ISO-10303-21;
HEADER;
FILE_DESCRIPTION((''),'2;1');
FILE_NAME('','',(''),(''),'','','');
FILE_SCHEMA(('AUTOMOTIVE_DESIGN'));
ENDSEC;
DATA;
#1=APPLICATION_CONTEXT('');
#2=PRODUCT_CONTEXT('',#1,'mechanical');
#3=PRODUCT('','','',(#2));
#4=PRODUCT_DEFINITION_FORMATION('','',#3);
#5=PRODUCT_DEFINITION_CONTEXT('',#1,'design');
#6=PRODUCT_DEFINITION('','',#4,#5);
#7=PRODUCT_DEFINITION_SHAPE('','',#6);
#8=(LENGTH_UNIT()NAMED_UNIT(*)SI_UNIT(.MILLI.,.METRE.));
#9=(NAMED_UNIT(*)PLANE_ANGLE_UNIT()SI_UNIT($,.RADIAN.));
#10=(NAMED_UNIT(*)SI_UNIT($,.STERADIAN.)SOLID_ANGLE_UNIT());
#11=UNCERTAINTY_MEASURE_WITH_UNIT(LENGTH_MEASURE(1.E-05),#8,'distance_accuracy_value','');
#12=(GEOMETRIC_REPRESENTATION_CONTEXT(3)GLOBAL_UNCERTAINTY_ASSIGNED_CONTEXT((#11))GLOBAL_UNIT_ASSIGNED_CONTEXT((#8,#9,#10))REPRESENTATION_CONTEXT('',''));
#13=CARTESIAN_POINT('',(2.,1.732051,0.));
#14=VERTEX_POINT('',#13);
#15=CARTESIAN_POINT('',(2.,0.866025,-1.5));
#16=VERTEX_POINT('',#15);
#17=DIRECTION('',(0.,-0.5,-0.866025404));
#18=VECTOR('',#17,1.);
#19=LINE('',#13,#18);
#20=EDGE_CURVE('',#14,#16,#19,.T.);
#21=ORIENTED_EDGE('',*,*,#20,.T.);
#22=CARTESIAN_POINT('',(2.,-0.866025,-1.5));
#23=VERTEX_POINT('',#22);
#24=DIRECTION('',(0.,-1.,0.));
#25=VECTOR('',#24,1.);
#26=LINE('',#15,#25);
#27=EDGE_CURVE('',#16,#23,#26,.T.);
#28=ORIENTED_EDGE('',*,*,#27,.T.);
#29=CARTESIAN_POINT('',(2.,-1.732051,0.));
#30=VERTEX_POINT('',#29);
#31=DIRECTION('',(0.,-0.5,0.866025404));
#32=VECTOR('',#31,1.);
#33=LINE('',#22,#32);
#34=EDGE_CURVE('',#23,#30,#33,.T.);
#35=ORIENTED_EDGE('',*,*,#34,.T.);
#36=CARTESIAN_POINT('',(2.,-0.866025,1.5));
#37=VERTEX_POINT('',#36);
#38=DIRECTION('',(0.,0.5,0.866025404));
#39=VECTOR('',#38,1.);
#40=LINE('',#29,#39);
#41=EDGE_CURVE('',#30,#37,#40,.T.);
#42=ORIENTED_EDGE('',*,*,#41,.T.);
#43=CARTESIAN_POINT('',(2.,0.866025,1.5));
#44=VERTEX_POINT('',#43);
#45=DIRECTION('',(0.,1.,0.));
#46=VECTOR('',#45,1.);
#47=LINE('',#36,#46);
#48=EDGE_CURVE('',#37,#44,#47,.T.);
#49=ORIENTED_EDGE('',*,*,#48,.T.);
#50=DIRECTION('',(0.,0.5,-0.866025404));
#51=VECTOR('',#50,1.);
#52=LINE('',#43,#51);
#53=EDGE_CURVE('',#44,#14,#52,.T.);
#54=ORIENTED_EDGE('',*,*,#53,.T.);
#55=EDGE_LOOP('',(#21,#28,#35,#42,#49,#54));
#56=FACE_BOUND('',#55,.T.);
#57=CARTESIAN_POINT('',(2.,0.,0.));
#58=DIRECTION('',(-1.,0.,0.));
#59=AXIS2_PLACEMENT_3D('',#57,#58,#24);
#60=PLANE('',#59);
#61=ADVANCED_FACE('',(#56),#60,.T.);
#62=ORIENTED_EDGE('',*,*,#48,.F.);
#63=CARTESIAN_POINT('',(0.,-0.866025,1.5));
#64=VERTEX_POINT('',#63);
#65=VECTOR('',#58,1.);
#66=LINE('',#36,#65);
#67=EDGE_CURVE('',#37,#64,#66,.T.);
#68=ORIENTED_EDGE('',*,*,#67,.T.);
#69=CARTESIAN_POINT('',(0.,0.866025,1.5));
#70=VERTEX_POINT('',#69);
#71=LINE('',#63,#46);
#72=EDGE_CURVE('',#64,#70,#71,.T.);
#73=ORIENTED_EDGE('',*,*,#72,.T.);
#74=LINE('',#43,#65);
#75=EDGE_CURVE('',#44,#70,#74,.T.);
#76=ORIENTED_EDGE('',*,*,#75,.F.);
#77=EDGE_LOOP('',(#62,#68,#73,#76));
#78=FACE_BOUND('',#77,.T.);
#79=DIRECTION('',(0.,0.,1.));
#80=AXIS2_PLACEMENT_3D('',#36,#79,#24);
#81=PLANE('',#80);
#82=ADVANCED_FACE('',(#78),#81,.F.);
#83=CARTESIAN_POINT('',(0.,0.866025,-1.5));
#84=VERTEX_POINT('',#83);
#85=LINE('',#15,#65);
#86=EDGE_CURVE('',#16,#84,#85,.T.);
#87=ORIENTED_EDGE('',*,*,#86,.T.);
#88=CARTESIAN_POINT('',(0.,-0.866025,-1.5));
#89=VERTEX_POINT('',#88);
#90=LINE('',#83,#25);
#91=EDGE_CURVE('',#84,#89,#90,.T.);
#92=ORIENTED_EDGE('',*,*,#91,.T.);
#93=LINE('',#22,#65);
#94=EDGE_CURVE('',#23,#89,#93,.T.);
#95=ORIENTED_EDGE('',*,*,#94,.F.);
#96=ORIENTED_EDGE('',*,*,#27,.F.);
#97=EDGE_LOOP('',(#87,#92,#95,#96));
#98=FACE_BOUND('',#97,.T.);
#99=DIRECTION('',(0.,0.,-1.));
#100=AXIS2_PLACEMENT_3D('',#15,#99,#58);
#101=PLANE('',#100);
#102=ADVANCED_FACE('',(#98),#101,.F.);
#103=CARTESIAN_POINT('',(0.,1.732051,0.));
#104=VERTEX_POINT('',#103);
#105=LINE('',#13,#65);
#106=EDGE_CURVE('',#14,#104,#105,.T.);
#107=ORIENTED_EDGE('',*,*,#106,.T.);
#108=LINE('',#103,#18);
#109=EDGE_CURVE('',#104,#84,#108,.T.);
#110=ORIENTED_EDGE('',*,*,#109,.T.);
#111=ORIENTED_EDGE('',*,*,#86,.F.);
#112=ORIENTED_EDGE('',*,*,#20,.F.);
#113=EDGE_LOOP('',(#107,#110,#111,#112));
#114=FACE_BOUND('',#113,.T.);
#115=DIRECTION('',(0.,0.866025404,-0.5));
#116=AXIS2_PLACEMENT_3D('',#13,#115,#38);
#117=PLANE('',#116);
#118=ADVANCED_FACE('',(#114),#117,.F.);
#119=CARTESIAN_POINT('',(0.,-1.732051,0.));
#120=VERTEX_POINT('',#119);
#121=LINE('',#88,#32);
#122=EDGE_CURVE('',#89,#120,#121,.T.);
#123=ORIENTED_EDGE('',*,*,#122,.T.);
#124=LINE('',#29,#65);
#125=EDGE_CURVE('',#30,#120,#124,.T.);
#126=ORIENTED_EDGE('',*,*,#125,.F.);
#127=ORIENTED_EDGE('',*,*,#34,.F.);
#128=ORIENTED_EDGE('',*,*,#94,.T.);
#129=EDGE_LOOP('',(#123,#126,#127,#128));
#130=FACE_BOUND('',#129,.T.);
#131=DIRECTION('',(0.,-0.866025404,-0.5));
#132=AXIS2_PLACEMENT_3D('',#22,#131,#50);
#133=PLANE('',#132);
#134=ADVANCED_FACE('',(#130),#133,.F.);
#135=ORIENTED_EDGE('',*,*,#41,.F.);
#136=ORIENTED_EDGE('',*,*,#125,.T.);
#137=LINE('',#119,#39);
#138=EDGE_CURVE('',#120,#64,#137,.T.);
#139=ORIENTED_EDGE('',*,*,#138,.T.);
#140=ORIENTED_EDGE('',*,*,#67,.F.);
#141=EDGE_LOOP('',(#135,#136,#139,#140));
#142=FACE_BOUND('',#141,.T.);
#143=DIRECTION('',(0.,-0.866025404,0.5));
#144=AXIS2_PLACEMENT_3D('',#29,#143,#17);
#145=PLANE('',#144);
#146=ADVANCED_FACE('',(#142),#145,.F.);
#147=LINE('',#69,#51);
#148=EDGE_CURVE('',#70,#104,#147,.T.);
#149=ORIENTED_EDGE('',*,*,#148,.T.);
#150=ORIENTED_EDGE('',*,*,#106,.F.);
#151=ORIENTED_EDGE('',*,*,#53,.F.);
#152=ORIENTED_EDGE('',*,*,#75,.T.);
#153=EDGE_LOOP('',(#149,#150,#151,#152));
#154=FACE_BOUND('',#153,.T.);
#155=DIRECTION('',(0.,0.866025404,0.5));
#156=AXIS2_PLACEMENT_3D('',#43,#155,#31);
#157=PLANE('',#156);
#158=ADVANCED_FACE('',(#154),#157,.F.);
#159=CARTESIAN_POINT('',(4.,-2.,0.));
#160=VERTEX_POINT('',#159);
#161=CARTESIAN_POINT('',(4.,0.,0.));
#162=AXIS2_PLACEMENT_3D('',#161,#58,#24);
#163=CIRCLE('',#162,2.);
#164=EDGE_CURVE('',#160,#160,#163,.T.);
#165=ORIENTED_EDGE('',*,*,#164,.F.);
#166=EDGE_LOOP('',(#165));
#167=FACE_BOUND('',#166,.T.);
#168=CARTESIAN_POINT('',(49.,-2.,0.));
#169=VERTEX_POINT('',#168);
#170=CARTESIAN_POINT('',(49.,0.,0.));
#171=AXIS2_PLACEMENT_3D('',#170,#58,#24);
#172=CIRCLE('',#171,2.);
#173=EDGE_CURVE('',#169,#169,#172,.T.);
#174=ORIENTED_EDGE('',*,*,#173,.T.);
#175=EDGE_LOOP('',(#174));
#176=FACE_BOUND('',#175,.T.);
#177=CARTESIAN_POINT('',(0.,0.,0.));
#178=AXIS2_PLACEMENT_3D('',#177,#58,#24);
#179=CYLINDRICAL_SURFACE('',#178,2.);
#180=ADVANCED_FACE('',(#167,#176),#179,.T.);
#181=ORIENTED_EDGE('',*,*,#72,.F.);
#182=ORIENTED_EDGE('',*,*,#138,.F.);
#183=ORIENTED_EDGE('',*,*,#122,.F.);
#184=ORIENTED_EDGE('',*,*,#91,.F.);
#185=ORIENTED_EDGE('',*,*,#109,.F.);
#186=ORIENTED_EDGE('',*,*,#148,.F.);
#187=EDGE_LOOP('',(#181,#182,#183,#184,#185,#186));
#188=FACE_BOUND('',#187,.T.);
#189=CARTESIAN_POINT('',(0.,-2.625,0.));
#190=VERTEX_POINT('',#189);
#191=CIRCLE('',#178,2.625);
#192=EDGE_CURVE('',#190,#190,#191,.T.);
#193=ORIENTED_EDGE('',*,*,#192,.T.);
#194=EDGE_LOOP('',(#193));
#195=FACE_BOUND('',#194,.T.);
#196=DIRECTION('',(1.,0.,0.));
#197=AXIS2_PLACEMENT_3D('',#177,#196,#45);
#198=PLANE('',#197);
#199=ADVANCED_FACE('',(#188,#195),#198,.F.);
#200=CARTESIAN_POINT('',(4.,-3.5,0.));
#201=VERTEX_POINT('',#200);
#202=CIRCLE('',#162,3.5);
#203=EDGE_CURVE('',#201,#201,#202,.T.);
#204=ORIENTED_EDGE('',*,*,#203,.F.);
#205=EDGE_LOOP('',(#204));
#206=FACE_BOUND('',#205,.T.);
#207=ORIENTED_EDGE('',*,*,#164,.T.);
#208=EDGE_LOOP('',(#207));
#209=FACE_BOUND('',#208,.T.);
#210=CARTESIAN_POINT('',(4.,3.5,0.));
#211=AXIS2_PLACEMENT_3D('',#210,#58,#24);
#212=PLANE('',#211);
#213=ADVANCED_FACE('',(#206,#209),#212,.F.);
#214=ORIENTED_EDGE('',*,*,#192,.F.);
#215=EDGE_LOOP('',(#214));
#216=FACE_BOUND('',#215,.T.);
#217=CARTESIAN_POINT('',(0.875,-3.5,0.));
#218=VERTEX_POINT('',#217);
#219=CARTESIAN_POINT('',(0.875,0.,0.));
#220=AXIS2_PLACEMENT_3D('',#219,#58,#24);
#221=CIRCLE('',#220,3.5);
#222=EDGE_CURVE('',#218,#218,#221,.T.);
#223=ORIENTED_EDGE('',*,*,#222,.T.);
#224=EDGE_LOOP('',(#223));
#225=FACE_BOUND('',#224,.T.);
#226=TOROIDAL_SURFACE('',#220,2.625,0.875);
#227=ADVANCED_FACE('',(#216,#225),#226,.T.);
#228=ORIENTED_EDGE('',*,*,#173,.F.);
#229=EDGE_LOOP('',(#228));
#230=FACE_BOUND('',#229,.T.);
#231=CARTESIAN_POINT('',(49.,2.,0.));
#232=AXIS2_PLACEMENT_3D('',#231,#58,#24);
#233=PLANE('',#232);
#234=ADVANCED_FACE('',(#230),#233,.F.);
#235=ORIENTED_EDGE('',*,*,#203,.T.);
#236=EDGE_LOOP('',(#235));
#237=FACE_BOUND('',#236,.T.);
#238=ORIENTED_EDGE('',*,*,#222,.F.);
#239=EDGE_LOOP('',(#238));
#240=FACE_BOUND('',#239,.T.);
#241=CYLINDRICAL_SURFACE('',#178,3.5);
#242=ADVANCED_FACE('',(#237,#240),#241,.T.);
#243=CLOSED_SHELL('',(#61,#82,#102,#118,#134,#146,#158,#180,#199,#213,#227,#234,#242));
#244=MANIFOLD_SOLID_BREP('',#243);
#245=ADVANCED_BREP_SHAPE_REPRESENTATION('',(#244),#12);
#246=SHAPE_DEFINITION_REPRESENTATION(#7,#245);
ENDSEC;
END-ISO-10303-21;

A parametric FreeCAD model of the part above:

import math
import FreeCAD as App
import Part
import Sketcher

V = App.Vector
Q = App.Units.Quantity


def add_polygon(sketch, points):
    """Adds a closed chain of lines whose ends are joined by coincident constraints."""
    first, n = sketch.GeometryCount, len(points)
    for a, b in zip(points, points[1:] + points[:1]):
        sketch.addGeometry(Part.LineSegment(App.Vector(*a, 0), App.Vector(*b, 0)), False)
    for i in range(n):
        sketch.addConstraint(Sketcher.Constraint("Coincident", first + i, 2, first + (i + 1) % n, 1))

doc = App.newDocument("Part")
params = doc.addObject("Spreadsheet::Sheet", "Params")
for row, (alias, value) in enumerate([
    ("sketch1_width", "49 mm"),
    ("sketch1_width2", "45 mm"),
    ("sketch1_height", "2 mm"),
    ("sketch1_height2", "1.5 mm"),
    ("revolution_angle", "360 deg"),
    ("pocket1_length", "2 mm"),
], start=1):
    params.set(f"A{row}", alias)
    params.set(f"B{row}", "=" + value)
    params.setAlias(f"B{row}", alias)

body = doc.addObject("PartDesign::Body", "Body")

sketch1 = body.newObject("Sketcher::SketchObject", "Sketch")
sketch1.AttachmentSupport = (doc.getObject("XY_Plane"), [""])
sketch1.MapMode = "FlatFace"
sketch1.addGeometry(Part.LineSegment(V(0, 2.6, 0), V(0, 0, 0)), False)
sketch1.addGeometry(Part.LineSegment(V(0, 0, 0), V(49, 0, 0)), False)
sketch1.addGeometry(Part.LineSegment(V(49, 0, 0), V(49, 2, 0)), False)
sketch1.addGeometry(Part.LineSegment(V(49, 2, 0), V(4, 2, 0)), False)
sketch1.addGeometry(Part.LineSegment(V(4, 2, 0), V(4, 3.5, 0)), False)
sketch1.addGeometry(Part.LineSegment(V(4, 3.5, 0), V(0.9, 3.5, 0)), False)
sketch1.addGeometry(Part.ArcOfCircle(Part.Circle(V(0.9, 2.6, 0), V(0, 0, 1), 0.9), math.radians(90), math.radians(180)), False)
sketch1.addConstraint(Sketcher.Constraint("Coincident", 0, 2, 1, 1))
sketch1.addConstraint(Sketcher.Constraint("Coincident", 1, 2, 2, 1))
sketch1.addConstraint(Sketcher.Constraint("Coincident", 2, 2, 3, 1))
sketch1.addConstraint(Sketcher.Constraint("Coincident", 3, 2, 4, 1))
sketch1.addConstraint(Sketcher.Constraint("Coincident", 4, 2, 5, 1))
sketch1.addConstraint(Sketcher.Constraint("Tangent", 5, 2, 6, 1))
sketch1.addConstraint(Sketcher.Constraint("Tangent", 6, 2, 0, 1))
sketch1.addConstraint(Sketcher.Constraint("Vertical", 0))
sketch1.addConstraint(Sketcher.Constraint("Horizontal", 1))
sketch1.addConstraint(Sketcher.Constraint("Vertical", 2))
sketch1.addConstraint(Sketcher.Constraint("Horizontal", 3))
sketch1.addConstraint(Sketcher.Constraint("Vertical", 4))
sketch1.addConstraint(Sketcher.Constraint("Horizontal", 5))
sketch1.addConstraint(Sketcher.Constraint("Coincident", 0, 2, -1, 1))
sketch1.addConstraint(Sketcher.Constraint("DistanceX", 1, 1, 1, 2, 49.0))
sketch1.addConstraint(Sketcher.Constraint("DistanceX", 3, 2, 3, 1, 45.0))
sketch1.addConstraint(Sketcher.Constraint("DistanceY", 2, 1, 2, 2, 2.0))
sketch1.addConstraint(Sketcher.Constraint("DistanceY", 4, 1, 4, 2, 1.5))
sketch1.addConstraint(Sketcher.Constraint("Radius", 6, 0.875))
sketch1.setExpression("Constraints[14]", "Params.sketch1_width")
sketch1.setExpression("Constraints[15]", "Params.sketch1_width2")
sketch1.setExpression("Constraints[16]", "Params.sketch1_height")
sketch1.setExpression("Constraints[17]", "Params.sketch1_height2")
revolution = body.newObject("PartDesign::Revolution", "Revolution")
revolution.Profile = sketch1
revolution.ReferenceAxis = (sketch1, ["H_Axis"])
revolution.setExpression("Angle", "Params.revolution_angle")

sketch2 = body.newObject("Sketcher::SketchObject", "Sketch001")
sketch2.AttachmentSupport = (doc.getObject("YZ_Plane"), [""])
sketch2.MapMode = "FlatFace"
add_polygon(sketch2, [(1.7, 0), (0.9, -1.5), (-0.9, -1.5), (-1.7, 0), (-0.9, 1.5), (0.9, 1.5)])
sketch2.addConstraint(Sketcher.Constraint("Horizontal", 1))
sketch2.addConstraint(Sketcher.Constraint("Horizontal", 4))
sketch2.addConstraint(Sketcher.Constraint("Symmetric", 0, 2, 3, 2, -1, 1))
sketch2.addConstraint(Sketcher.Constraint("Symmetric", 2, 2, 5, 2, -1, 1))
sketch2.addConstraint(Sketcher.Constraint("PointOnObject", 2, 2, -1))
sketch2.addConstraint(Sketcher.Constraint("Parallel", 2, 5))
sketch2.addConstraint(Sketcher.Constraint("Vertical", 1, 2, 3, 2))
sketch2.addConstraint(Sketcher.Constraint("Angle", 0, Q("-120 deg")))
sketch2.addConstraint(Sketcher.Constraint("DistanceY", 1, 2, 3, 2, 3.0))
sketch2.addConstraint(Sketcher.Constraint("DistanceX", 1, 2, 1, 1, 1.732051))
pocket1 = body.newObject("PartDesign::Pocket", "Pocket")
pocket1.Profile = sketch2
pocket1.setExpression("Length", "Params.pocket1_length")
pocket1.Reversed = True

doc.recompute()
